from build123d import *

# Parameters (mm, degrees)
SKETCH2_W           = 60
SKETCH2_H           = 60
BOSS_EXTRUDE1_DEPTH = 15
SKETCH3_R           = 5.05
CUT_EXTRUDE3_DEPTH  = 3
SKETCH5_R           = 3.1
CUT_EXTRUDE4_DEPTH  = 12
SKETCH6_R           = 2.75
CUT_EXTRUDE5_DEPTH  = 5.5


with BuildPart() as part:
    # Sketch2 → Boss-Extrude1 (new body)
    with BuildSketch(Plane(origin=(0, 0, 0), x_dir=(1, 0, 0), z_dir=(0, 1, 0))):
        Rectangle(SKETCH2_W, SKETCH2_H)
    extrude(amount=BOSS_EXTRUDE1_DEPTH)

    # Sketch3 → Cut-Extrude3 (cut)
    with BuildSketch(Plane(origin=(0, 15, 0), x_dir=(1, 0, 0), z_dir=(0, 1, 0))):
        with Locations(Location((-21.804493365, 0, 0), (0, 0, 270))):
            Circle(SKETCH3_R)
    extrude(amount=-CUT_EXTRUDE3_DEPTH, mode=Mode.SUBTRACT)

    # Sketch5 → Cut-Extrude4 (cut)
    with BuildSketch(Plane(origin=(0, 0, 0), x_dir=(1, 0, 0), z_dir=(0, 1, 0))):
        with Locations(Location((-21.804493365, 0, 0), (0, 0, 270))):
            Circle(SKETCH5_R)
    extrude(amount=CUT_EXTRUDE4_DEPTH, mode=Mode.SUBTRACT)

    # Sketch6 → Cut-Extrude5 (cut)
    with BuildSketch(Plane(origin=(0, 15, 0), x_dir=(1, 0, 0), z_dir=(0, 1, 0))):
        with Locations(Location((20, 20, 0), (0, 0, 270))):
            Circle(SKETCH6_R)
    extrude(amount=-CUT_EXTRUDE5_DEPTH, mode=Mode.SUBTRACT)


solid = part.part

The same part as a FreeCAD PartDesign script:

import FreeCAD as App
import Part
import Sketcher

V = App.Vector

doc = App.newDocument("Part")
body = doc.addObject("PartDesign::Body", "Body")

# Sketch on XZ plane
sketch1 = body.newObject("Sketcher::SketchObject", "Sketch")
sketch1.AttachmentSupport = (doc.getObject("XZ_Plane"), [""])
sketch1.MapMode = "FlatFace"
sketch1.addGeometry([
    Part.LineSegment(V(-30, -30, 0), V(-30, 30, 0)),
    Part.LineSegment(V(-30, 30, 0), V(30, 30, 0)),
    Part.LineSegment(V(30, 30, 0), V(30, -30, 0)),
    Part.LineSegment(V(30, -30, 0), V(-30, -30, 0)),
], False)
sketch1.addConstraint([
    Sketcher.Constraint("Coincident", 0, 2, 1, 1),
    Sketcher.Constraint("Coincident", 1, 2, 2, 1),
    Sketcher.Constraint("Coincident", 2, 2, 3, 1),
    Sketcher.Constraint("Coincident", 3, 2, 0, 1),
    Sketcher.Constraint("Vertical", 0),
    Sketcher.Constraint("Horizontal", 1),
    Sketcher.Constraint("Vertical", 2),
    Sketcher.Constraint("Horizontal", 3),
    Sketcher.Constraint("Symmetric", 0, 2, 2, 2, -1, 1),
    Sketcher.Constraint("Equal", 3, 0),
    Sketcher.Constraint("DistanceX", 1, 1, 1, 2, 60.0),
])
pad1 = body.newObject("PartDesign::Pad", "Pad")
pad1.Profile = sketch1
pad1.Length = 15
pad1.Reversed = True

# Sketch on XZ plane
sketch2 = body.newObject("Sketcher::SketchObject", "Sketch001")
sketch2.AttachmentSupport = (doc.getObject("XZ_Plane"), [""])
sketch2.MapMode = "FlatFace"
sketch2.AttachmentOffset = App.Placement(V(0, 0, -15), App.Rotation())
sketch2.addGeometry(Part.Circle(V(-22, 0, 0), V(0, 0, 1), 5), False)
sketch2.addConstraint([
    Sketcher.Constraint("PointOnObject", 0, 3, -1),
    Sketcher.Constraint("Diameter", 0, 10.1),
    Sketcher.Constraint("DistanceX", 0, 3, -1, 1, 21.804493),
])
pocket1 = body.newObject("PartDesign::Pocket", "Pocket")
pocket1.Profile = sketch2
pocket1.Length = 3
pocket1.Reversed = True

# Sketch on XZ plane
sketch3 = body.newObject("Sketcher::SketchObject", "Sketch002")
sketch3.AttachmentSupport = (doc.getObject("XZ_Plane"), [""])
sketch3.MapMode = "FlatFace"
sketch3.addGeometry(Part.Circle(V(-21.8, 0, 0), V(0, 0, 1), 3.1), False)
sketch3.addConstraint([
    Sketcher.Constraint("PointOnObject", 0, 3, -1),
    Sketcher.Constraint("Diameter", 0, 6.2),
    Sketcher.Constraint("DistanceX", 0, 3, -1, 1, 21.804493),
])
pocket2 = body.newObject("PartDesign::Pocket", "Pocket001")
pocket2.Profile = sketch3
pocket2.Length = 12

# Sketch on XZ plane
sketch4 = body.newObject("Sketcher::SketchObject", "Sketch003")
sketch4.AttachmentSupport = (doc.getObject("XZ_Plane"), [""])
sketch4.MapMode = "FlatFace"
sketch4.AttachmentOffset = App.Placement(V(0, 0, -15), App.Rotation())
sketch4.addGeometry(Part.Circle(V(20, -20, 0), V(0, 0, 1), 2.8), False)
sketch4.addConstraint([
    Sketcher.Constraint("Diameter", 0, 5.5),
    Sketcher.Constraint("DistanceX", -1, 1, 0, 3, 20.0),
    Sketcher.Constraint("DistanceY", 0, 3, -1, 1, 20.0),
])
pocket3 = body.newObject("PartDesign::Pocket", "Pocket002")
pocket3.Profile = sketch4
pocket3.Length = 5.5
pocket3.Reversed = True

doc.recompute()
